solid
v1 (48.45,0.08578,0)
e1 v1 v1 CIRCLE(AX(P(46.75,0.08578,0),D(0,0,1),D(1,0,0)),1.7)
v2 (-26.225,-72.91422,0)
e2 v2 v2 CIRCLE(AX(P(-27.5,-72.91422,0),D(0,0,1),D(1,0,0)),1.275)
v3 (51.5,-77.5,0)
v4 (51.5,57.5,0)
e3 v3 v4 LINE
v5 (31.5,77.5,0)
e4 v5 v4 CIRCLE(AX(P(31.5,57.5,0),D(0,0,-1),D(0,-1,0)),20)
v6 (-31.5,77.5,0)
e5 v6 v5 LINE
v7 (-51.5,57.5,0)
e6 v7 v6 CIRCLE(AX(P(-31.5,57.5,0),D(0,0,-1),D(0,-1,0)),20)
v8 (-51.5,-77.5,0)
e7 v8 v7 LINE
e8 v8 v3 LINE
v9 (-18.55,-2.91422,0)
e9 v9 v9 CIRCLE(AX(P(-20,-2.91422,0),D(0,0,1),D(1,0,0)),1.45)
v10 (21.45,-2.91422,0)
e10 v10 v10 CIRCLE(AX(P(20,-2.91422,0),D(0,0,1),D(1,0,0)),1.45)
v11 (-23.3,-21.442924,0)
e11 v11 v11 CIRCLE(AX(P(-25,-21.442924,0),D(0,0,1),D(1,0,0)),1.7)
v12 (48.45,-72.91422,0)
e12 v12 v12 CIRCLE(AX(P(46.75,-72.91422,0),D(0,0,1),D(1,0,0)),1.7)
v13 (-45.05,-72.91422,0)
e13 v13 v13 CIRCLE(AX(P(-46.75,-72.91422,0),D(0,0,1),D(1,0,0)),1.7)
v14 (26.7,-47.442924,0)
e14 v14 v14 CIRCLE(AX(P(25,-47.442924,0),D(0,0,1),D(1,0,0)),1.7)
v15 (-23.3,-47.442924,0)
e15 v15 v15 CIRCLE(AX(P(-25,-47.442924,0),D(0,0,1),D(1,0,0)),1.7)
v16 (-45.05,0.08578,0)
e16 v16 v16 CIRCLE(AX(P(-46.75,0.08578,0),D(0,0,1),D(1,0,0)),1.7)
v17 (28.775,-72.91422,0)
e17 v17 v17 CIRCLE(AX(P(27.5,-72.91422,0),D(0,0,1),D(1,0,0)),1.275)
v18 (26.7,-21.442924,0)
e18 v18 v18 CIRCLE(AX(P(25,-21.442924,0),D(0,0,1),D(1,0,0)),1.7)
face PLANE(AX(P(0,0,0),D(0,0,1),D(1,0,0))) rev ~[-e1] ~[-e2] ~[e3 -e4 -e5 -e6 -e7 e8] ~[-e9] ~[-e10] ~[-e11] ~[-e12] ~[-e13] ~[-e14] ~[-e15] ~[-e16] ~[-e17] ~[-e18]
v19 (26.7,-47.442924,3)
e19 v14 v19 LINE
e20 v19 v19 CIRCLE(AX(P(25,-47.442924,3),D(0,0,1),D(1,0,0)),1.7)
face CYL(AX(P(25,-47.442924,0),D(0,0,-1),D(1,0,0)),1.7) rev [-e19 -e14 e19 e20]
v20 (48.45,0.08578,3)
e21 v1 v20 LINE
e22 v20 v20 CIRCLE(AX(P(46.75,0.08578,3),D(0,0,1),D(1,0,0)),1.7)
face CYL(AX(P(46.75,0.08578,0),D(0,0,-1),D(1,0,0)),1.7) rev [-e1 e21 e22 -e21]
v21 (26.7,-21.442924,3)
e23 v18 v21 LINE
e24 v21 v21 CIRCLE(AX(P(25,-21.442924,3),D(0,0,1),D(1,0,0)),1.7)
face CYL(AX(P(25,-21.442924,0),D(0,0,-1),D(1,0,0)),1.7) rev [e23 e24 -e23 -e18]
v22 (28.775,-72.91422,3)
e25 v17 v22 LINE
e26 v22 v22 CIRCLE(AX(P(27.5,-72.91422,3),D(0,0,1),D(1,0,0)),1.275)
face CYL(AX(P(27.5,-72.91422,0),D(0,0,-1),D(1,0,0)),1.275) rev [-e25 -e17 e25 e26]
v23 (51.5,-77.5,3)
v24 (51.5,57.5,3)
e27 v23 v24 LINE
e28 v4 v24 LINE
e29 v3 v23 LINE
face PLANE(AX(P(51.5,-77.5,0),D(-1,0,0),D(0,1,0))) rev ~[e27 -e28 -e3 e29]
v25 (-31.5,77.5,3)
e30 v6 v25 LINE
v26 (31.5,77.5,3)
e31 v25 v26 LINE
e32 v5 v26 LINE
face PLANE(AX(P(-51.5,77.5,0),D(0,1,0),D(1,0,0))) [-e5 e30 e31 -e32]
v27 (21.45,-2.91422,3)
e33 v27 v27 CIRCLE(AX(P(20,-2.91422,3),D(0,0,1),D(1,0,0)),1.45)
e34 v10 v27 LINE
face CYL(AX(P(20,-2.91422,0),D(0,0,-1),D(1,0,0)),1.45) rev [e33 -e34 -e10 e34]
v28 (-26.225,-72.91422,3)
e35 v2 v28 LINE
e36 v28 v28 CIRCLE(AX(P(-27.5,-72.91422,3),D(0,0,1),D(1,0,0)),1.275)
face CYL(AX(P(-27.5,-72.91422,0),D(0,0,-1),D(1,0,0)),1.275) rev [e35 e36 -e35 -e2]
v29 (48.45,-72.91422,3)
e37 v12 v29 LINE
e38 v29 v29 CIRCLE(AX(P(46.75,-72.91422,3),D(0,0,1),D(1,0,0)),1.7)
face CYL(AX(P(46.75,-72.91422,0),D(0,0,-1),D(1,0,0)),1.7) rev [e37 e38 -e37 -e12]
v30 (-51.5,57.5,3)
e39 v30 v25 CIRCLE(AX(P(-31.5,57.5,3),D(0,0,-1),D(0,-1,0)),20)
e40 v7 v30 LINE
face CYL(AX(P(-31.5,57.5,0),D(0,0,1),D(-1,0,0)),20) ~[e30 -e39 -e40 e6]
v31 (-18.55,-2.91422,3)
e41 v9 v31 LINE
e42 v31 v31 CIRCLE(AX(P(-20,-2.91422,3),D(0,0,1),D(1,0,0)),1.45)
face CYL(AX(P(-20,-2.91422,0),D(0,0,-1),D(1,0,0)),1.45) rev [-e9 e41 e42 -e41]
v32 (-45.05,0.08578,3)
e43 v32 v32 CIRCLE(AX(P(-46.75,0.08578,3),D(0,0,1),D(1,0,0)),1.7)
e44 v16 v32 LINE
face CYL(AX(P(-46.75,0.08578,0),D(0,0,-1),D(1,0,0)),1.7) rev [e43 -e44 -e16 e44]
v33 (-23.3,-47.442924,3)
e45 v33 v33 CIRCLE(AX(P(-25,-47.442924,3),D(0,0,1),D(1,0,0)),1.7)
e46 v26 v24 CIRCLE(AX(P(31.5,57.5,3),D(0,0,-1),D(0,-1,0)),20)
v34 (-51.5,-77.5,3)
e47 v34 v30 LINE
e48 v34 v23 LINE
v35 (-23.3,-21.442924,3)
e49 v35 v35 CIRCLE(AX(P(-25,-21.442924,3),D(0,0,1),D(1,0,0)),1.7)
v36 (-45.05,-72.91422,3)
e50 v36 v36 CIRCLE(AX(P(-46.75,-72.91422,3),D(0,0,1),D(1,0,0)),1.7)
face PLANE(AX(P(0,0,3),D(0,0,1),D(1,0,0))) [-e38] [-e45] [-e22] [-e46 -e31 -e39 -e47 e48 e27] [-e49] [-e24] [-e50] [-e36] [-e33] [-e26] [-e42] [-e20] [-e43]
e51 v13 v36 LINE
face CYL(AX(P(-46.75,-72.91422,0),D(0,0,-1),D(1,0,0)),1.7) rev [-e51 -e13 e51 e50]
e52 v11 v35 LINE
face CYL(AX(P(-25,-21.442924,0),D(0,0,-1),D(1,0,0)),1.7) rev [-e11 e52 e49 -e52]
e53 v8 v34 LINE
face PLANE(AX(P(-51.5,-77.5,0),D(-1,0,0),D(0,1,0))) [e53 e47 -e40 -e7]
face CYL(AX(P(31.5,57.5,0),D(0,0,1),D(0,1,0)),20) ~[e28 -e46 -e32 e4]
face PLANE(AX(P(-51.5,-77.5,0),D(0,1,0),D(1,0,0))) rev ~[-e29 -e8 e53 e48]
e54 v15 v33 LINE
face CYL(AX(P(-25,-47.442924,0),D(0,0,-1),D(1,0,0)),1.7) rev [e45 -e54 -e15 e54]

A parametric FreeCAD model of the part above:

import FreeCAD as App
import Part
import Sketcher

V = App.Vector
Q = App.Units.Quantity


def edges_at(feature, points):
    """Names of the edges that pass closest to the given points."""
    edges = feature.Shape.Edges
    near = lambda p: min(range(len(edges)), key=lambda i: edges[i].distToShape(Part.Vertex(*p))[0])
    return sorted({f"Edge{near(p) + 1}" for p in points})


def add_polygon(sketch, points):
    """Adds a closed chain of lines whose ends are joined by coincident constraints."""
    first, n = sketch.GeometryCount, len(points)
    for a, b in zip(points, points[1:] + points[:1]):
        sketch.addGeometry(Part.LineSegment(App.Vector(*a, 0), App.Vector(*b, 0)), False)
    for i in range(n):
        sketch.addConstraint(Sketcher.Constraint("Coincident", first + i, 2, first + (i + 1) % n, 1))

doc = App.newDocument("Part")
body = doc.addObject("PartDesign::Body", "Body")

# Sketch on XY plane
sketch1 = body.newObject("Sketcher::SketchObject", "Sketch")
sketch1.AttachmentSupport = (doc.getObject("XY_Plane"), [""])
sketch1.MapMode = "FlatFace"
add_polygon(sketch1, [(-51.5, 77.5), (-51.5, -77.5), (51.5, -77.5), (51.5, 77.5)])  # lines 0-3
sketch1.addGeometry(Part.Circle(V(-46.75, -72.91422, 0), V(0, 0, 1), 1.7), False)  # 4
sketch1.addGeometry(Part.Circle(V(-27.5, -72.91422, 0), V(0, 0, 1), 1.275), False)  # 5
sketch1.addGeometry(Part.Circle(V(-25, -47.442924, 0), V(0, 0, 1), 1.7), False)  # 6
sketch1.addGeometry(Part.Circle(V(27.5, -72.91422, 0), V(0, 0, 1), 1.275), False)  # 7
sketch1.addGeometry(Part.Circle(V(46.75, -72.91422, 0), V(0, 0, 1), 1.7), False)  # 8
sketch1.addGeometry(Part.Circle(V(25, -47.442924, 0), V(0, 0, 1), 1.7), False)  # 9
sketch1.addGeometry(Part.Circle(V(-25, -21.442924, 0), V(0, 0, 1), 1.7), False)  # 10
sketch1.addGeometry(Part.Circle(V(-46.75, 0.08578, 0), V(0, 0, 1), 1.7), False)  # 11
sketch1.addGeometry(Part.Circle(V(-20, -2.91422, 0), V(0, 0, 1), 1.45), False)  # 12
sketch1.addGeometry(Part.Circle(V(25, -21.442924, 0), V(0, 0, 1), 1.7), False)  # 13
sketch1.addGeometry(Part.Circle(V(20, -2.91422, 0), V(0, 0, 1), 1.45), False)  # 14
sketch1.addGeometry(Part.Circle(V(46.75, 0.08578, 0), V(0, 0, 1), 1.7), False)  # 15
sketch1.addConstraint([
    Sketcher.Constraint("Vertical", 0),
    Sketcher.Constraint("Horizontal", 1),
    Sketcher.Constraint("Vertical", 2),
    Sketcher.Constraint("Horizontal", 3),
    Sketcher.Constraint("Equal", 4, 6),
    Sketcher.Constraint("Equal", 5, 7),
    Sketcher.Constraint("Equal", 6, 8),
    Sketcher.Constraint("Equal", 8, 9),
    Sketcher.Constraint("Equal", 9, 10),
    Sketcher.Constraint("Equal", 10, 11),
    Sketcher.Constraint("Equal", 11, 13),
    Sketcher.Constraint("Equal", 12, 14),
    Sketcher.Constraint("Equal", 13, 15),
    Sketcher.Constraint("Symmetric", 0, 2, 2, 2, -1, 1),
    Sketcher.Constraint("Symmetric", 5, 3, 7, 3, -2),
    Sketcher.Constraint("Symmetric", 4, 3, 8, 3, -2),
    Sketcher.Constraint("Symmetric", 6, 3, 9, 3, -2),
    Sketcher.Constraint("Symmetric", 10, 3, 13, 3, -2),
    Sketcher.Constraint("Symmetric", 12, 3, 14, 3, -2),
    Sketcher.Constraint("Symmetric", 11, 3, 15, 3, -2),
    Sketcher.Constraint("Horizontal", 4, 3, 5, 3),
    Sketcher.Constraint("Vertical", 6, 3, 10, 3),
    Sketcher.Constraint("Vertical", 4, 3, 11, 3),
    Sketcher.Constraint("Diameter", 4, Q("3.4 mm")),
    Sketcher.Constraint("Diameter", 12, Q("2.9 mm")),
    Sketcher.Constraint("Diameter", 5, Q("2.55 mm")),
    Sketcher.Constraint("DistanceX", 1, 1, 1, 2, Q("103 mm")),
    Sketcher.Constraint("DistanceY", 0, 2, 0, 1, Q("155 mm")),
    Sketcher.Constraint("DistanceX", 6, 3, -1, 1, Q("25 mm")),
    Sketcher.Constraint("DistanceX", 12, 3, -1, 1, Q("20 mm")),
    Sketcher.Constraint("DistanceX", 5, 3, 7, 3, Q("55 mm")),
    Sketcher.Constraint("DistanceY", 6, 3, 10, 3, Q("26 mm")),
    Sketcher.Constraint("DistanceY", 4, 3, 11, 3, Q("73 mm")),
    Sketcher.Constraint("DistanceY", 12, 3, 11, 3, Q("3 mm")),
    Sketcher.Constraint("DistanceX", 4, 3, 8, 3, Q("93.5 mm")),
    Sketcher.Constraint("DistanceY", 4, 3, -1, 1, Q("72.91422 mm")),
    Sketcher.Constraint("DistanceY", 6, 3, -1, 1, Q("47.442924 mm")),
])
pad1 = body.newObject("PartDesign::Pad", "Pad")
pad1.Profile = sketch1
pad1.Length = 3
doc.recompute()

fillet = body.newObject("PartDesign::Fillet", "Fillet")
fillet.Base = (pad1, edges_at(pad1, [(-51.5, 77.5, 1.5), (51.5, 77.5, 1.5)]))
fillet.Radius = 20

doc.recompute()
